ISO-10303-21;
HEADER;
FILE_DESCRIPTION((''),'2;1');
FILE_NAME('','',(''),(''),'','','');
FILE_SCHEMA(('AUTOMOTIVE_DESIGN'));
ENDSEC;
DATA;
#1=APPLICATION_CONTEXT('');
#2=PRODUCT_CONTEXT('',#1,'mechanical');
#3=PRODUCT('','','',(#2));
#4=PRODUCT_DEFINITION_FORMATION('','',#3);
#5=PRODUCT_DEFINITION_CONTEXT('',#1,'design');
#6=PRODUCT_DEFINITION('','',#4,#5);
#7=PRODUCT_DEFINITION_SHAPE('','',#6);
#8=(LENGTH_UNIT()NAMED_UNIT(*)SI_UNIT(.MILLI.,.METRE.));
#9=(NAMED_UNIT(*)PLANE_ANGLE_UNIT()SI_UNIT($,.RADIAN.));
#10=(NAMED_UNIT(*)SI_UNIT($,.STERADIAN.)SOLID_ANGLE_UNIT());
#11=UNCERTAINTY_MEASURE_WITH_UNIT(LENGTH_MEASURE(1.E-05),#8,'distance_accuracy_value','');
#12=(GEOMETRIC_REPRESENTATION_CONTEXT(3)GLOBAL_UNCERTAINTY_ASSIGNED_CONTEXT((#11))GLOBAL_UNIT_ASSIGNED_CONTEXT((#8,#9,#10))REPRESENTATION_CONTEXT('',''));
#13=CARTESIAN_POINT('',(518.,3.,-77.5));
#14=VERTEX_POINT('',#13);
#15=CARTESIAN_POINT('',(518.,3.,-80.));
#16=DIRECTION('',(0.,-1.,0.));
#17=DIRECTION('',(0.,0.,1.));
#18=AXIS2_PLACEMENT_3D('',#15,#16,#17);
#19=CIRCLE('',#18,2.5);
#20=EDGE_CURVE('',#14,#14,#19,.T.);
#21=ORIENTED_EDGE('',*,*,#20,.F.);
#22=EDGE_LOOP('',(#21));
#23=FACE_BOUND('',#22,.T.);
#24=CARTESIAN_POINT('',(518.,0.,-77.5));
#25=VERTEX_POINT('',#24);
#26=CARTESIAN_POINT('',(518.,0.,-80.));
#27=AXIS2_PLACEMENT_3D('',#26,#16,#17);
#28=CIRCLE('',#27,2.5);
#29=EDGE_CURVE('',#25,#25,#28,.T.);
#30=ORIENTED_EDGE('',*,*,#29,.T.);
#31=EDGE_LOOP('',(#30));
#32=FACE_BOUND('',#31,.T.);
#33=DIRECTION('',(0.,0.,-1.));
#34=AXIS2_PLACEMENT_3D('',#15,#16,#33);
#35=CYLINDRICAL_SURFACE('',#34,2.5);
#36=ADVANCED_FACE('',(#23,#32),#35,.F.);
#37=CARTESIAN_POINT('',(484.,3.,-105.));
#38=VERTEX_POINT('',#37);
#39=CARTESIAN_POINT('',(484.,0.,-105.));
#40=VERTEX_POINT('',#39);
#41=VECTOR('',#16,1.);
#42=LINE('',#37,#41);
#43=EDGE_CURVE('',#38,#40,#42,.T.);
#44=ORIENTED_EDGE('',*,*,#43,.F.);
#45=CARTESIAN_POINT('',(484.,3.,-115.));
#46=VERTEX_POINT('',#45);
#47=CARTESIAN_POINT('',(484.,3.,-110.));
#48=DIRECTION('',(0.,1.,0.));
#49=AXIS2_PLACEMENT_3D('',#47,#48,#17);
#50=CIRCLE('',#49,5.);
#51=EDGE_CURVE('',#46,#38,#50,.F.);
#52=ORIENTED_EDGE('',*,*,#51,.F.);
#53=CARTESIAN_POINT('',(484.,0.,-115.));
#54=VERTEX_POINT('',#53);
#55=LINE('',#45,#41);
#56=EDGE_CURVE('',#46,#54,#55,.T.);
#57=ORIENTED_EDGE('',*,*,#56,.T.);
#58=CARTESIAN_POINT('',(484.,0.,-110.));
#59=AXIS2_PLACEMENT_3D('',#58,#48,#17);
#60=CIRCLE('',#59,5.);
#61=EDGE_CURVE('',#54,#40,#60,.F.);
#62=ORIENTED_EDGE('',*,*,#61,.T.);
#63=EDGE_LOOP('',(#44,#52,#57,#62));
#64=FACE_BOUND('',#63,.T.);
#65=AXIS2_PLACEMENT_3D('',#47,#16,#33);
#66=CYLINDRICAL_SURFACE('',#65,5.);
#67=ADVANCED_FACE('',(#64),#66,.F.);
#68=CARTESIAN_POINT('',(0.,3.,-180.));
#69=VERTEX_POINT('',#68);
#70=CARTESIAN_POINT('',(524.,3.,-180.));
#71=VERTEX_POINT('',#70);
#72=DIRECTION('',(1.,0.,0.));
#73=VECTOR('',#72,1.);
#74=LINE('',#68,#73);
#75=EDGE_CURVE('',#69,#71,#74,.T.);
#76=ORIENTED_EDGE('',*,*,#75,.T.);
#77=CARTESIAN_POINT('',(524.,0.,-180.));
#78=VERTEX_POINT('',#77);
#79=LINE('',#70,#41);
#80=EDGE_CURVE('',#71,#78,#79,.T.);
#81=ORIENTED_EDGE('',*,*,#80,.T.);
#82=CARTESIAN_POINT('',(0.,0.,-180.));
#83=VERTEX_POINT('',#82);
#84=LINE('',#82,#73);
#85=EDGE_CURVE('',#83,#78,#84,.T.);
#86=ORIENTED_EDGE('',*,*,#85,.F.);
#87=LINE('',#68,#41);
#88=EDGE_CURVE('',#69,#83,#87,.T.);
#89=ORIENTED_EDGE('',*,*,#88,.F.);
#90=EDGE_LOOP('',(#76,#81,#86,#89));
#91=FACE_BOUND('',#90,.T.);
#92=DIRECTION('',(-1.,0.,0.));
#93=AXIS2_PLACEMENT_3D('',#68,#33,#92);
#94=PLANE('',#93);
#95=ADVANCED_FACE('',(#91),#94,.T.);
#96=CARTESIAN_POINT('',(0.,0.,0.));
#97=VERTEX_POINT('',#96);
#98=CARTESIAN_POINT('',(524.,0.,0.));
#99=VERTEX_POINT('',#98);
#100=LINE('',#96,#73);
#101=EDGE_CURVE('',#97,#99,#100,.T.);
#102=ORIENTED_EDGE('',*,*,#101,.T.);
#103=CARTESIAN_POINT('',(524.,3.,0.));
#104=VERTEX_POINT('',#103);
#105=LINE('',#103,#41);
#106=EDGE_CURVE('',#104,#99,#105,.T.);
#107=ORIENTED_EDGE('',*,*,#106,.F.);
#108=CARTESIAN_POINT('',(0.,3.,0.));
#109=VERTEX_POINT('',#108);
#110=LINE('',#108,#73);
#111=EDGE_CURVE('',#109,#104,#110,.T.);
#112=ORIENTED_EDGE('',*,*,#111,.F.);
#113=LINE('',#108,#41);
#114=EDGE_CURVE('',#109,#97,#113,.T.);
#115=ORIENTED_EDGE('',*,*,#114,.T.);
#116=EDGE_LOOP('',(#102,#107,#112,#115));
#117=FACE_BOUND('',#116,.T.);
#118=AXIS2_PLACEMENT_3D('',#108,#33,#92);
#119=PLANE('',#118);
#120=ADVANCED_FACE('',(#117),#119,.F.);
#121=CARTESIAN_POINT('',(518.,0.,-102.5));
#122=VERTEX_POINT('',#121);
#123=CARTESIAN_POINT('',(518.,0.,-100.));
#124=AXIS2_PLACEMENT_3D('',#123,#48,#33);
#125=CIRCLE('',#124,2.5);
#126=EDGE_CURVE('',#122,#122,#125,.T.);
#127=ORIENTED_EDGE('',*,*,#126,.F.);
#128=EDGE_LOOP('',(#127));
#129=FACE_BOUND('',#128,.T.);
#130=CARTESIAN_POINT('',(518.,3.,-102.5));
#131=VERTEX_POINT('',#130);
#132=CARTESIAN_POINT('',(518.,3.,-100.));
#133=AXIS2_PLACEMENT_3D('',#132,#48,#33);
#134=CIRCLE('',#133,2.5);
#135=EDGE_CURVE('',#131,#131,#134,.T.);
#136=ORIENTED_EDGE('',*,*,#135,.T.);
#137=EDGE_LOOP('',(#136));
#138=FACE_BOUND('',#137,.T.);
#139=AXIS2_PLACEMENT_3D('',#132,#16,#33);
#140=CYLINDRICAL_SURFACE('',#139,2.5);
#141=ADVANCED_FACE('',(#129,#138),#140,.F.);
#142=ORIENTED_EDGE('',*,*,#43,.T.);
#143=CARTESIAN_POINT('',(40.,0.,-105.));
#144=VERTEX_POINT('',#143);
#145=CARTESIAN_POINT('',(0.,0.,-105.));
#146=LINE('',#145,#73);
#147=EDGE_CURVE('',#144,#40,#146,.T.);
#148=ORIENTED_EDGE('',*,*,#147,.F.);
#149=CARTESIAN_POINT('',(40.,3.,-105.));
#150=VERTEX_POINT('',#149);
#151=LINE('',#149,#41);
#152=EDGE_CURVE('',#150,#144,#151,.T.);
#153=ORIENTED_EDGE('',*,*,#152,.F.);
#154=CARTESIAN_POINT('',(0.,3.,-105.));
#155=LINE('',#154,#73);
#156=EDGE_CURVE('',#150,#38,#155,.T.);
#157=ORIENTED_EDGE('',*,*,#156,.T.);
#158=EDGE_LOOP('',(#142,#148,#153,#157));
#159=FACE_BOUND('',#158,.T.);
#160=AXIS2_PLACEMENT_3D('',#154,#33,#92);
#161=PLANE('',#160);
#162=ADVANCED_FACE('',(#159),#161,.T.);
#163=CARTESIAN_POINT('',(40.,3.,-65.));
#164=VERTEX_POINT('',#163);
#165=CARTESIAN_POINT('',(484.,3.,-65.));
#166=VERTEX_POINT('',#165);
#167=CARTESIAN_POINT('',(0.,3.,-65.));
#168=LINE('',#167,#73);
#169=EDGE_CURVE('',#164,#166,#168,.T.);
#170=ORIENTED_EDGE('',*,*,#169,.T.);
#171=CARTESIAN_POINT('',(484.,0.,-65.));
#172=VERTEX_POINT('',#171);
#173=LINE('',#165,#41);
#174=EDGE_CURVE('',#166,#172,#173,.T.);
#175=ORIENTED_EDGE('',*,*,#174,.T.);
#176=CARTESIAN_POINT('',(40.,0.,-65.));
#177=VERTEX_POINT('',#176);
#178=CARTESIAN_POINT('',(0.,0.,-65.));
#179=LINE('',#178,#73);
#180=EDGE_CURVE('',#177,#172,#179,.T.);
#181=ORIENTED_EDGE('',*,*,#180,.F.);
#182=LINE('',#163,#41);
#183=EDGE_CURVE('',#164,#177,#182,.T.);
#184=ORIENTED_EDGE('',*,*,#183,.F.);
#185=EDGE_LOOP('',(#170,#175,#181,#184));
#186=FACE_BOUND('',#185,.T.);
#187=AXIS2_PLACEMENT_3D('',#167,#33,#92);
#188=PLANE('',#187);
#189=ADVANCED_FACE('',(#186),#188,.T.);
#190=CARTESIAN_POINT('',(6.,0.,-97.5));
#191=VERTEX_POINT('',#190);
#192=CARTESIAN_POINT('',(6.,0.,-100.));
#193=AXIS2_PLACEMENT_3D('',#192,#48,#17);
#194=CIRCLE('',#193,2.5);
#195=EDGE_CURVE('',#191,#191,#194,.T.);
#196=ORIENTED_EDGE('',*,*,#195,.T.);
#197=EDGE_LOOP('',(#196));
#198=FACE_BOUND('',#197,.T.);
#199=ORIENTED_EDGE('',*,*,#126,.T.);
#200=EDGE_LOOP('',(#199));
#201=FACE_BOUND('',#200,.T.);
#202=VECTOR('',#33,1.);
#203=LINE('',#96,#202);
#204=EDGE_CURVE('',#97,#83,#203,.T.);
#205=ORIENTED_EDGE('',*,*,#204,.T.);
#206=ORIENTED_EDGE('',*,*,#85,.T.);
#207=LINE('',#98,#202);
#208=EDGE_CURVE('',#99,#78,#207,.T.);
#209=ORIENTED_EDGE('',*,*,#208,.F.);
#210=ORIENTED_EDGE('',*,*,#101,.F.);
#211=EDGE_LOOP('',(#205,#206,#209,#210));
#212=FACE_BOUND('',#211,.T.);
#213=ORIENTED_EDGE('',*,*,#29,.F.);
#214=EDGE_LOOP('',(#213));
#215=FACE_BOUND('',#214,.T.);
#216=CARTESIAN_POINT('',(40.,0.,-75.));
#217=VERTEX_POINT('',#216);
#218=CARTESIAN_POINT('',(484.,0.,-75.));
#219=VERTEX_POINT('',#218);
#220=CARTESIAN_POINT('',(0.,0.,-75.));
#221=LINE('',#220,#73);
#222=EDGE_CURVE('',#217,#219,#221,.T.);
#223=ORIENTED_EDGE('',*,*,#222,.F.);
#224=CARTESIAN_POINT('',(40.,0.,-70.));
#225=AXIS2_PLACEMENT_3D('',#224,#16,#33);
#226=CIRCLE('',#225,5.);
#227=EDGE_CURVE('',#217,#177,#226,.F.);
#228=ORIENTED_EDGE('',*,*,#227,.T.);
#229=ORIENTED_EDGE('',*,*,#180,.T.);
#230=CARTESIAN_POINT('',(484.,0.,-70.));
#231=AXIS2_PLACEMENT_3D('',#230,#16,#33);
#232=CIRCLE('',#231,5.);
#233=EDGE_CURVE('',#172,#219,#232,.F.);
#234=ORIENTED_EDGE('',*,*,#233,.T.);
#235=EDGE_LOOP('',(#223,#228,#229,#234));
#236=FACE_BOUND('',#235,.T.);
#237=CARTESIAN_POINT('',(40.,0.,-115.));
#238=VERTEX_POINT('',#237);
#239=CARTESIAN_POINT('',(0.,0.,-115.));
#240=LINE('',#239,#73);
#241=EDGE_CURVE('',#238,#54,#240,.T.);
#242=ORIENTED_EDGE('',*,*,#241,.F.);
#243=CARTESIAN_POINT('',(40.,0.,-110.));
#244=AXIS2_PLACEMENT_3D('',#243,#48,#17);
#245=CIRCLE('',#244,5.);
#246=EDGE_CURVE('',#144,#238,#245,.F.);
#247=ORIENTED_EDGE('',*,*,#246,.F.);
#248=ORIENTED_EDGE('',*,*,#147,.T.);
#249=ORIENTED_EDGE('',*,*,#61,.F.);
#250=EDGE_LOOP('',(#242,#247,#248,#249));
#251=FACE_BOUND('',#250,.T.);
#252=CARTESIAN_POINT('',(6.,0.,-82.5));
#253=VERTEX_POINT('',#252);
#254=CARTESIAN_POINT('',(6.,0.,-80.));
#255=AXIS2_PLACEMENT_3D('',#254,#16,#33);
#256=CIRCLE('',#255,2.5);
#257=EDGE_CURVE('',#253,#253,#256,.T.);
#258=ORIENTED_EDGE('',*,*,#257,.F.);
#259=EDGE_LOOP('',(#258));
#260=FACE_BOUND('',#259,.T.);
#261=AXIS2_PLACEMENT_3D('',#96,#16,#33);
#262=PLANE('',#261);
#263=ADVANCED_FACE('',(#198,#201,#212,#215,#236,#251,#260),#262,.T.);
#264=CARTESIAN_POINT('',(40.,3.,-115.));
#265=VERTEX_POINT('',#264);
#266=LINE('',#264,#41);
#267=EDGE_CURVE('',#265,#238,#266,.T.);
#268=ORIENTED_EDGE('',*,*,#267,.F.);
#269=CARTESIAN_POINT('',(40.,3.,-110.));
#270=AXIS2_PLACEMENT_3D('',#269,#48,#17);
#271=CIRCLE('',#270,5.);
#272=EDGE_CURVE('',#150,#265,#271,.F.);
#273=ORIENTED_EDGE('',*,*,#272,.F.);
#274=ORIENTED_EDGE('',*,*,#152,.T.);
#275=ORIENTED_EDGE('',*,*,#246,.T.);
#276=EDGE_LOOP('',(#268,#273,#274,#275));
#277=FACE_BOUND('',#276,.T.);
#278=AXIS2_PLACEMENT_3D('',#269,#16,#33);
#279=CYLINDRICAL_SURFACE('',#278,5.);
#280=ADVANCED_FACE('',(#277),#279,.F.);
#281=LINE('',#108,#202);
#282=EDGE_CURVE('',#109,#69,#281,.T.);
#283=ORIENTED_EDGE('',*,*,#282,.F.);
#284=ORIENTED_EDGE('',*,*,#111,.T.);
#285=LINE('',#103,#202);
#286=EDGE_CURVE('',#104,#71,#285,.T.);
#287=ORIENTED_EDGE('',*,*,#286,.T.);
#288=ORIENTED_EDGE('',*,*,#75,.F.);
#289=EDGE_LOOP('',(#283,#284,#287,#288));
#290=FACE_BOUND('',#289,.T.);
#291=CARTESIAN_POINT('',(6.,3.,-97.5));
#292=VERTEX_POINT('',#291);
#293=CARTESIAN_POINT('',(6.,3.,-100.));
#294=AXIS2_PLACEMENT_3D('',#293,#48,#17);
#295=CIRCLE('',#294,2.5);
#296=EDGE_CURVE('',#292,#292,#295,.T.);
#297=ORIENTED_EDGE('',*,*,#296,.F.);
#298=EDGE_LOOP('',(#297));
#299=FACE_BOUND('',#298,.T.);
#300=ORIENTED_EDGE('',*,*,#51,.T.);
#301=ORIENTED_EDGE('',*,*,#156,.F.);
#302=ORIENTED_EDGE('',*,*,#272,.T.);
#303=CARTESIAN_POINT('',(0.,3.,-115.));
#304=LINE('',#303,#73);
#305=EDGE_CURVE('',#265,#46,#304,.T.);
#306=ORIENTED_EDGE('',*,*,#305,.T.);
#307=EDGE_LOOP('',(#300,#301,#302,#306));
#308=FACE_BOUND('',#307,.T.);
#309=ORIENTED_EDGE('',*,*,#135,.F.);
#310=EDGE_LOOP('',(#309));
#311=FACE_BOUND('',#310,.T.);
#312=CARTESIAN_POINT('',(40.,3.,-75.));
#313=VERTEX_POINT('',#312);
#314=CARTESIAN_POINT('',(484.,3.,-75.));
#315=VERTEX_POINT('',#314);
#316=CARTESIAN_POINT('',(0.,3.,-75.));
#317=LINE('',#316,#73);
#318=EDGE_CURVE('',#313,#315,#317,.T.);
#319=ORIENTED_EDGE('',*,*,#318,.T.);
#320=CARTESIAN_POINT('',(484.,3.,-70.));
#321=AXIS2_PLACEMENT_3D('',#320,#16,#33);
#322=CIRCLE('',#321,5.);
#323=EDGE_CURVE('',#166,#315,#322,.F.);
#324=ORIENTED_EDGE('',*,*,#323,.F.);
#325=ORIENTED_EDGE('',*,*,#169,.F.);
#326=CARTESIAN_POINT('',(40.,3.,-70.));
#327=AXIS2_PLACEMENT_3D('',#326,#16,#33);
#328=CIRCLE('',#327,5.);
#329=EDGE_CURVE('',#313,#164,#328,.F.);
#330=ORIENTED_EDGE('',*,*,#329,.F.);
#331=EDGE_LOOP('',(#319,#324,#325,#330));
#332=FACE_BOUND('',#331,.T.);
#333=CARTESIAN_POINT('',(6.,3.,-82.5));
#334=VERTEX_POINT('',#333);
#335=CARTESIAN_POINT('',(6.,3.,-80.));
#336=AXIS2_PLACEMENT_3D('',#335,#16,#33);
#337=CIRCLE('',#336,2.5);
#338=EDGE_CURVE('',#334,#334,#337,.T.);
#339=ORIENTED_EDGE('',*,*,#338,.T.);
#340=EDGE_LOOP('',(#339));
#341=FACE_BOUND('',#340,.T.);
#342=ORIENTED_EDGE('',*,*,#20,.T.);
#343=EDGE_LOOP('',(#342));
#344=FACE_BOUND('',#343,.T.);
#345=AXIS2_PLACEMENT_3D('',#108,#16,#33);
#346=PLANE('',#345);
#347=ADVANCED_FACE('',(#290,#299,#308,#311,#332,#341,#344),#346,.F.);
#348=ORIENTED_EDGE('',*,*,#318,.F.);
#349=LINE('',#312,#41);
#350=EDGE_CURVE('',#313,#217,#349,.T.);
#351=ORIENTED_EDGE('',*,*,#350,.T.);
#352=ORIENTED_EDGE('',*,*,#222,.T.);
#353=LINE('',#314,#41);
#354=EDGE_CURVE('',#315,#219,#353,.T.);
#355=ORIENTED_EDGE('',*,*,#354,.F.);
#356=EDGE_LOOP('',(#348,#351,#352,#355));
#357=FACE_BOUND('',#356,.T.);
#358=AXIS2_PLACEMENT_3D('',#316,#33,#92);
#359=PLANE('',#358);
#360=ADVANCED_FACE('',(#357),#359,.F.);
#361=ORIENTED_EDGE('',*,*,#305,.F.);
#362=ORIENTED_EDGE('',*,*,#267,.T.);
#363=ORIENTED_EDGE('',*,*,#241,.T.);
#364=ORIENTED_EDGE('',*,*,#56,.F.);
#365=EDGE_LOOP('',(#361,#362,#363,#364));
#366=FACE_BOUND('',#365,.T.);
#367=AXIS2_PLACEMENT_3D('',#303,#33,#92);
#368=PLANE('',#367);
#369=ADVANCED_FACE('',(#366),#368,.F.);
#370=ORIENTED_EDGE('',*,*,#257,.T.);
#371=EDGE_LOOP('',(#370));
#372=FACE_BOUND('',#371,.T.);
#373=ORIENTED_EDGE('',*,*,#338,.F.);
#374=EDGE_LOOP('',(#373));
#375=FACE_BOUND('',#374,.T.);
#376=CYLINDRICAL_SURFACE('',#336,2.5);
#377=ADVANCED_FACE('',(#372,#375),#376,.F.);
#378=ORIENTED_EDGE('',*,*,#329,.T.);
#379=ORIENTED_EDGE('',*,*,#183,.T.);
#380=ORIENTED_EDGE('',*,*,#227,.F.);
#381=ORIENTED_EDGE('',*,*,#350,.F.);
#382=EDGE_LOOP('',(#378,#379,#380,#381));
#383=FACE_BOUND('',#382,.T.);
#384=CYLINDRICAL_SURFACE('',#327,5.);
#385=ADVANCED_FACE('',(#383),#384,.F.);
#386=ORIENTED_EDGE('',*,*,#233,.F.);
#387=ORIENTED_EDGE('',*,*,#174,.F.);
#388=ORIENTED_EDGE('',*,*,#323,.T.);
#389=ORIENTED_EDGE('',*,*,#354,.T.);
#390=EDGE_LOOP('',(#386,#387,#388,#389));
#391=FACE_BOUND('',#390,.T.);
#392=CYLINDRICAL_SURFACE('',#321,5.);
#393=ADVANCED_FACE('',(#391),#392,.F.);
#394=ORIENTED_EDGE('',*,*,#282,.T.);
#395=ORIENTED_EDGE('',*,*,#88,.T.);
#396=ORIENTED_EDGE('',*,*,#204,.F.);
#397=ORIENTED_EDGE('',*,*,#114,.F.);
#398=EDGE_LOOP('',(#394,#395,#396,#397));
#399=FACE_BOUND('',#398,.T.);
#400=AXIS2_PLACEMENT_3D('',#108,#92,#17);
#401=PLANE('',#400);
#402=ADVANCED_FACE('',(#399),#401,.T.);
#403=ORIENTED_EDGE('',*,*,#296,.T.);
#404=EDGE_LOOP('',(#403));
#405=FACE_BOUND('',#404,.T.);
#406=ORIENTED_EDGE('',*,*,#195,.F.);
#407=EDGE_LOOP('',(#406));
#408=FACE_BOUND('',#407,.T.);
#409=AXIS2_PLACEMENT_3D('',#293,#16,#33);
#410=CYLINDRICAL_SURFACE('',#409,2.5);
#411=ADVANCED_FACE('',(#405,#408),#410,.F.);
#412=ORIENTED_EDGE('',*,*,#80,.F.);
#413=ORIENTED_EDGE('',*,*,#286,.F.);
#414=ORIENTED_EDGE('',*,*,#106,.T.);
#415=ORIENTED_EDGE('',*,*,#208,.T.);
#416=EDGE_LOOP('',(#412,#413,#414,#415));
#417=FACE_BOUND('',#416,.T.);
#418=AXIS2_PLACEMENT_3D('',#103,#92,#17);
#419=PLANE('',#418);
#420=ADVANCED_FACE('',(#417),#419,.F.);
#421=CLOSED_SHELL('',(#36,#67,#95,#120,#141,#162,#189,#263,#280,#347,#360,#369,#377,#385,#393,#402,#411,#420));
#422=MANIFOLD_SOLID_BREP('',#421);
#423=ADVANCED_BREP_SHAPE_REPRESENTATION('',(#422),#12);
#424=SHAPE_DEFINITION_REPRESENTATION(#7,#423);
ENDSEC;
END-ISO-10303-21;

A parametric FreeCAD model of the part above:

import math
import FreeCAD as App
import Part
import Sketcher
from FreeCAD import Vector
Q = App.Units.Quantity

doc = App.newDocument("Part")
body = doc.addObject("PartDesign::Body", "Body")

# Sketch on XZ plane
sketch1 = body.newObject("Sketcher::SketchObject", "Sketch")
sketch1.AttachmentSupport = (doc.getObject("XZ_Plane"), [""])
sketch1.MapMode = "FlatFace"
sketch1.addGeometry([
    Part.LineSegment(Vector(0, -180, 0), Vector(0, 0, 0)),
    Part.LineSegment(Vector(0, 0, 0), Vector(524, 0, 0)),
    Part.LineSegment(Vector(524, 0, 0), Vector(524, -180, 0)),
    Part.LineSegment(Vector(524, -180, 0), Vector(0, -180, 0)),
], False)
sketch1.addConstraint([
    Sketcher.Constraint("Coincident", 0, 2, 1, 1),
    Sketcher.Constraint("Coincident", 1, 2, 2, 1),
    Sketcher.Constraint("Coincident", 2, 2, 3, 1),
    Sketcher.Constraint("Coincident", 3, 2, 0, 1),
    Sketcher.Constraint("Vertical", 0),
    Sketcher.Constraint("Horizontal", 1),
    Sketcher.Constraint("Vertical", 2),
    Sketcher.Constraint("Horizontal", 3),
    Sketcher.Constraint("Coincident", 0, 2, -1, 1),
    Sketcher.Constraint("DistanceX", 1, 1, 1, 2, Q("524 mm")),
    Sketcher.Constraint("DistanceY", 0, 1, 0, 2, Q("180 mm")),
])
pad1 = body.newObject("PartDesign::Pad", "Pad")
pad1.Profile = sketch1
pad1.Length = 3
pad1.Reversed = True

# Sketch on XZ plane
sketch2 = body.newObject("Sketcher::SketchObject", "Sketch001")
sketch2.AttachmentSupport = (doc.getObject("XZ_Plane"), [""])
sketch2.MapMode = "FlatFace"
sketch2.addGeometry([
    Part.ArcOfCircle(Part.Circle(Vector(484, -70, 0), Vector(0, 0, 1), 5), math.radians(-90), math.radians(90)),
    Part.LineSegment(Vector(484, -65, 0), Vector(40, -65, 0)),
    Part.ArcOfCircle(Part.Circle(Vector(40, -70, 0), Vector(0, 0, 1), 5), math.radians(90), math.radians(270)),
    Part.LineSegment(Vector(40, -75, 0), Vector(484, -75, 0)),
], False)
sketch2.addConstraint([
    Sketcher.Constraint("Tangent", 0, 2, 1, 1),
    Sketcher.Constraint("Tangent", 1, 2, 2, 1),
    Sketcher.Constraint("Tangent", 2, 2, 3, 1),
    Sketcher.Constraint("Tangent", 3, 2, 0, 1),
    Sketcher.Constraint("Horizontal", 1),
    Sketcher.Constraint("Horizontal", 3),
    Sketcher.Constraint("Radius", 0, Q("5 mm")),
    Sketcher.Constraint("DistanceX", 1, 2, 1, 1, Q("444 mm")),
    Sketcher.Constraint("DistanceX", -1, 1, 0, 3, Q("484 mm")),
    Sketcher.Constraint("DistanceY", 0, 3, -1, 1, Q("70 mm")),
])
pocket1 = body.newObject("PartDesign::Pocket", "Pocket")
pocket1.Profile = sketch2
pocket1.Type = "ThroughAll"

# Sketch on XZ plane
sketch3 = body.newObject("Sketcher::SketchObject", "Sketch002")
sketch3.AttachmentSupport = (doc.getObject("XZ_Plane"), [""])
sketch3.MapMode = "FlatFace"
sketch3.addGeometry([
    Part.Circle(Vector(6, -80, 0), Vector(0, 0, 1), 2.5),
    Part.Circle(Vector(518, -80, 0), Vector(0, 0, 1), 2.5),
], False)
sketch3.addConstraint([
    Sketcher.Constraint("Equal", 0, 1),
    Sketcher.Constraint("Horizontal", 0, 3, 1, 3),
    Sketcher.Constraint("Diameter", 0, Q("5 mm")),
    Sketcher.Constraint("DistanceX", -1, 1, 0, 3, Q("6 mm")),
    Sketcher.Constraint("DistanceY", 0, 3, -1, 1, Q("80 mm")),
    Sketcher.Constraint("DistanceX", -1, 1, 1, 3, Q("518 mm")),
])
pocket2 = body.newObject("PartDesign::Pocket", "Pocket001")
pocket2.Profile = sketch3
pocket2.Type = "ThroughAll"
doc.recompute()

datumplane = body.newObject("PartDesign::Plane", "DatumPlane")
datumplane.AttachmentSupport = (doc.getObject("XY_Plane"), [""])
datumplane.MapMode = "FlatFace"
datumplane.AttachmentOffset = App.Placement(Vector(0, 0, -90), App.Rotation())
mirrored = body.newObject("PartDesign::Mirrored", "Mirrored")
mirrored.Originals = [pocket1, pocket2]
mirrored.MirrorPlane = (datumplane, [""])
body.Tip = mirrored

doc.recompute()
